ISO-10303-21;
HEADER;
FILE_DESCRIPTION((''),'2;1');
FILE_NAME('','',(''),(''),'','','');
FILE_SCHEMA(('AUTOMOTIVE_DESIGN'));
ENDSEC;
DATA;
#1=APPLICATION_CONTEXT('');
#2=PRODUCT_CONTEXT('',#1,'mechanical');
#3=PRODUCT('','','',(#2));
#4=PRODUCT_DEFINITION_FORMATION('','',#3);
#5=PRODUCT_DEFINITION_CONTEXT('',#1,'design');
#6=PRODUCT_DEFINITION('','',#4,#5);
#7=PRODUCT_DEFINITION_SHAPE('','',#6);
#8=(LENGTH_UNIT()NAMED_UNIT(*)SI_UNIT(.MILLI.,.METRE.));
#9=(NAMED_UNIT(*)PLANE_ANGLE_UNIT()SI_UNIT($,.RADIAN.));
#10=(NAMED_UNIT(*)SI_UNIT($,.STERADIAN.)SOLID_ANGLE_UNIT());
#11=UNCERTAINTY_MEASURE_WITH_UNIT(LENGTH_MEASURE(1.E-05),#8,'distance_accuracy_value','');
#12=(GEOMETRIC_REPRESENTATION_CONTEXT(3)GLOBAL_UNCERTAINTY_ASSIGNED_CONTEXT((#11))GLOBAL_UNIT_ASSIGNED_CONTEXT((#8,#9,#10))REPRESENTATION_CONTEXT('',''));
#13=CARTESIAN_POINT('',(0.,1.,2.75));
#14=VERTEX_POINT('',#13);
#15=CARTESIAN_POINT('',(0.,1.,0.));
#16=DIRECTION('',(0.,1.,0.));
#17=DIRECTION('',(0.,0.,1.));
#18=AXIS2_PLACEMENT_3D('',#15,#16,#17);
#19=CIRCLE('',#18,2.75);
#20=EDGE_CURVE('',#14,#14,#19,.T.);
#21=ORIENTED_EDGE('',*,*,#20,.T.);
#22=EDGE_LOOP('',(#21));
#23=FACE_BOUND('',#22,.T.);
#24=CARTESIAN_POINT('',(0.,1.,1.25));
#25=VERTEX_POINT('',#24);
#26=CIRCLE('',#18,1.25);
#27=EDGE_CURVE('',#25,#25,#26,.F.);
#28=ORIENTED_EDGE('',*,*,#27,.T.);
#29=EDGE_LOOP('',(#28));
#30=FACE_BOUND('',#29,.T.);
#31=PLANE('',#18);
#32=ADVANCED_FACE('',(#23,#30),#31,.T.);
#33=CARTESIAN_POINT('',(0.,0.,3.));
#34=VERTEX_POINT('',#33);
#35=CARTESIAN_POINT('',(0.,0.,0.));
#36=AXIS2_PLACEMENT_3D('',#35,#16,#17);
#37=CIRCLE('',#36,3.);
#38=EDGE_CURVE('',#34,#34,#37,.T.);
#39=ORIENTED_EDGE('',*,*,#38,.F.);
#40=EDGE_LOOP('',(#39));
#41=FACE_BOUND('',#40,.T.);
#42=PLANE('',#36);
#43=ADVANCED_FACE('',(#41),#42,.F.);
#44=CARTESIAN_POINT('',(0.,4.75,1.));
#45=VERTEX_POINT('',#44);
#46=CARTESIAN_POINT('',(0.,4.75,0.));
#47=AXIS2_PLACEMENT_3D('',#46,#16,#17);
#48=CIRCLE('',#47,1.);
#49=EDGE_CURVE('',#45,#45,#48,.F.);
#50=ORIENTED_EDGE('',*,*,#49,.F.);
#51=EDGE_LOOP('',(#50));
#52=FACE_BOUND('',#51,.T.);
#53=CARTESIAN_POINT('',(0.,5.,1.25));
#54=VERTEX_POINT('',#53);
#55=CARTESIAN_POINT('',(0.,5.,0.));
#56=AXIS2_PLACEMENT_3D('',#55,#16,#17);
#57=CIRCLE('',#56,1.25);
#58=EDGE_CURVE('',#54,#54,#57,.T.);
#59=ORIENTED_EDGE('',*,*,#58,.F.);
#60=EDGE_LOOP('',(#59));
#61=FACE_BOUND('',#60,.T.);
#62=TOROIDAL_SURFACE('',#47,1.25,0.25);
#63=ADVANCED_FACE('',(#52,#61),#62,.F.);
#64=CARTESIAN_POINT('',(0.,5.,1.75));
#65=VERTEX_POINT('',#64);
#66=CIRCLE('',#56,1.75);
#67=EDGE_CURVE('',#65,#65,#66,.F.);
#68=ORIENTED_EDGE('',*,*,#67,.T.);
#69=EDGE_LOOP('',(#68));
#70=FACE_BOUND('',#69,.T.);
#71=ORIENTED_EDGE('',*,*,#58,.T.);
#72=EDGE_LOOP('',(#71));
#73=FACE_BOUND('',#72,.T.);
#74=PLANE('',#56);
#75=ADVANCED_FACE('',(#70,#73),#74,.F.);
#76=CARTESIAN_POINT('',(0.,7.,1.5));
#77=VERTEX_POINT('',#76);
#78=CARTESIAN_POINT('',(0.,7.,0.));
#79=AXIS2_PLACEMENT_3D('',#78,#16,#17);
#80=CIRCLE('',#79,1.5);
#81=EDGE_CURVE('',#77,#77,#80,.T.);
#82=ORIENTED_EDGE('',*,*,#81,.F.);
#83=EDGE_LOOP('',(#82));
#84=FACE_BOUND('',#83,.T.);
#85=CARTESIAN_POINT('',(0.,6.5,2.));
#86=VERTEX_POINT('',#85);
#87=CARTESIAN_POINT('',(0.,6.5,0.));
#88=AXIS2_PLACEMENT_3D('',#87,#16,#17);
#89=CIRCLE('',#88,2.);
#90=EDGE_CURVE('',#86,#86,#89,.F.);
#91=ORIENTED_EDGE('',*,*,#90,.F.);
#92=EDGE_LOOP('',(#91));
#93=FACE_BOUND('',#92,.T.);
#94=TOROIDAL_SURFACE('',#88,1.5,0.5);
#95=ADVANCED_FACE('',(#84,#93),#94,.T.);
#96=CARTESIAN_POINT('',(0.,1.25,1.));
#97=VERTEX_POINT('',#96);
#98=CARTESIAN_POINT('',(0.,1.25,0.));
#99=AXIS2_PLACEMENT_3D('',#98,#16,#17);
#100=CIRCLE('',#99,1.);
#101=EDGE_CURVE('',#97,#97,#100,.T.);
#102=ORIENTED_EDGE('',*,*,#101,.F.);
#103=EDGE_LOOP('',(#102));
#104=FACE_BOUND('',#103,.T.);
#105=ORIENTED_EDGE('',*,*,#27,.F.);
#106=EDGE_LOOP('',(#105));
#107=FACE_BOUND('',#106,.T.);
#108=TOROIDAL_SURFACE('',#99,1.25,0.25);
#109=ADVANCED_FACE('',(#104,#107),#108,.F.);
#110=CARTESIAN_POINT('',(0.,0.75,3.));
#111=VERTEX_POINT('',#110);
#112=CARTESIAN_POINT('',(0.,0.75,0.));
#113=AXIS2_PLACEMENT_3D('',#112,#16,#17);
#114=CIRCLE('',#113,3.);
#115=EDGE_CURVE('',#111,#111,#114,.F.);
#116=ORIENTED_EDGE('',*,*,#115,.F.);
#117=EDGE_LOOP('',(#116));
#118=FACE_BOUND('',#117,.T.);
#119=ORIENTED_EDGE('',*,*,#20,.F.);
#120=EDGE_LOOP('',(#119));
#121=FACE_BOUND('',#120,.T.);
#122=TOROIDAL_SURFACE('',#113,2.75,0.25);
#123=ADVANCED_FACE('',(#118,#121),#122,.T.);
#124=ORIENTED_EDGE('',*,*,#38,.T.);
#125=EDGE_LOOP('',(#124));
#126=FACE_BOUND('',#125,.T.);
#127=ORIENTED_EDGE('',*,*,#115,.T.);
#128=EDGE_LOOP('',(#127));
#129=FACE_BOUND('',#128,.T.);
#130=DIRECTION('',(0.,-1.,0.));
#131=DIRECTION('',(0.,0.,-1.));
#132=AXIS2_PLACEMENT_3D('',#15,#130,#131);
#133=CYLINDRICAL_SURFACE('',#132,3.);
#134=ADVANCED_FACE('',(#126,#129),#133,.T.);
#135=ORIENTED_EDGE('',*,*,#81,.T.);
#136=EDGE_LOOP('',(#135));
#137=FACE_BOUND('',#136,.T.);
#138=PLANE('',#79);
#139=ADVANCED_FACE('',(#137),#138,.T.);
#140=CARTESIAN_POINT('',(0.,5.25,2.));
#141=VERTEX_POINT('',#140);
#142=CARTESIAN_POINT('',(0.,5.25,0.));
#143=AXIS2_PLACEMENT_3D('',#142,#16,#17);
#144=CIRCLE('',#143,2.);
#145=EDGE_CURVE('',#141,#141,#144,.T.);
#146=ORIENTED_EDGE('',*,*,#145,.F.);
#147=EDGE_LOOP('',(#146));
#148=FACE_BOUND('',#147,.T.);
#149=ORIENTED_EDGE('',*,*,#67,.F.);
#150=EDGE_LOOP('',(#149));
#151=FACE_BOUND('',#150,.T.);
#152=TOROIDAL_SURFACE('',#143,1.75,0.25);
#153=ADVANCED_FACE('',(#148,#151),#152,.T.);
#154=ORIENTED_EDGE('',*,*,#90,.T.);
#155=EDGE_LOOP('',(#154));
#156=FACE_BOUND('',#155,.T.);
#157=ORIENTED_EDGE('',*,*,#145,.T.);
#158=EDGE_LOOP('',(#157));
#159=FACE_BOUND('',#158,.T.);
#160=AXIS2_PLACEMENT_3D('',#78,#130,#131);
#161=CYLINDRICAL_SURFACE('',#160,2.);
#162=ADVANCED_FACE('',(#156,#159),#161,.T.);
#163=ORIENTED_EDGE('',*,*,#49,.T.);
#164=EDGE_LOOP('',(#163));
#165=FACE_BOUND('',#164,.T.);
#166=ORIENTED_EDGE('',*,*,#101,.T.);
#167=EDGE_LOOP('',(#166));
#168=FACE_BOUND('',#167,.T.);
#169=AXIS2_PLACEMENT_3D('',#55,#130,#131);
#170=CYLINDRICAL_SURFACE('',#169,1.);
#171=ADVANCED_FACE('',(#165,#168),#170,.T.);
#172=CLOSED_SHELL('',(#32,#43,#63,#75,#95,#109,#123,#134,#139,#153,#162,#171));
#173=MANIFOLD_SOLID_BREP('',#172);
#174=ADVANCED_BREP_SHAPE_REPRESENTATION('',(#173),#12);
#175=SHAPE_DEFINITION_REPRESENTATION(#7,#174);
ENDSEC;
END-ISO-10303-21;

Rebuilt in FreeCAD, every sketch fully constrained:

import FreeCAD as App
import Part
import Sketcher


def edges_at(feature, points):
    """Names of the edges that pass closest to the given points."""
    edges = feature.Shape.Edges
    near = lambda p: min(range(len(edges)), key=lambda i: edges[i].distToShape(Part.Vertex(*p))[0])
    return sorted({f"Edge{near(p) + 1}" for p in points})

doc = App.newDocument("Part")
body = doc.addObject("PartDesign::Body", "Body")

# Sketch on XZ plane
sketch1 = doc.addObject("Sketcher::SketchObject", "Sketch")
body.addObject(sketch1)
sketch1.AttachmentSupport = (doc.XZ_Plane, [""])
sketch1.MapMode = "FlatFace"
sketch1.addGeometry(Part.Circle(App.Vector(0, 0, 0), App.Vector(0, 0, 1), 2), False)
sketch1.addConstraint(Sketcher.Constraint("Coincident", 0, 3, -1, 1))
sketch1.addConstraint(Sketcher.Constraint("Diameter", 0, 4.0))
pad1 = doc.addObject("PartDesign::Pad", "Pad")
body.addObject(pad1)
pad1.Profile = sketch1
pad1.Length = 7
pad1.Reversed = True

# Sketch on XZ plane
sketch2 = doc.addObject("Sketcher::SketchObject", "Sketch001")
body.addObject(sketch2)
sketch2.AttachmentSupport = (doc.XZ_Plane, [""])
sketch2.MapMode = "FlatFace"
sketch2.addGeometry(Part.Circle(App.Vector(0, 0, 0), App.Vector(0, 0, 1), 2), False)
sketch2.addGeometry(Part.Circle(App.Vector(0, 0, 0), App.Vector(0, 0, 1), 1), False)
sketch2.addConstraint(Sketcher.Constraint("Coincident", 0, 3, -1, 1))
sketch2.addConstraint(Sketcher.Constraint("Coincident", 1, 3, -1, 1))
sketch2.addConstraint(Sketcher.Constraint("Diameter", 0, 4.0))
sketch2.addConstraint(Sketcher.Constraint("Diameter", 1, 2.0))
pocket1 = doc.addObject("PartDesign::Pocket", "Pocket")
body.addObject(pocket1)
pocket1.Profile = sketch2
pocket1.Length = 5

# Sketch on XZ plane
sketch3 = doc.addObject("Sketcher::SketchObject", "Sketch002")
body.addObject(sketch3)
sketch3.AttachmentSupport = (doc.XZ_Plane, [""])
sketch3.MapMode = "FlatFace"
sketch3.addGeometry(Part.Circle(App.Vector(0, 0, 0), App.Vector(0, 0, 1), 3), False)
sketch3.addGeometry(Part.Circle(App.Vector(0, 0, 0), App.Vector(0, 0, 1), 1), False)
sketch3.addConstraint(Sketcher.Constraint("Coincident", 0, 3, -1, 1))
sketch3.addConstraint(Sketcher.Constraint("Coincident", 1, 3, -1, 1))
sketch3.addConstraint(Sketcher.Constraint("Diameter", 0, 6.0))
sketch3.addConstraint(Sketcher.Constraint("Diameter", 1, 2.0))
pad2 = doc.addObject("PartDesign::Pad", "Pad001")
body.addObject(pad2)
pad2.Profile = sketch3
pad2.Length = 1
pad2.Reversed = True
doc.recompute()

fillet = doc.addObject("PartDesign::Fillet", "Fillet")
body.addObject(fillet)
fillet.Base = (pad2, edges_at(pad2, [(0, 7, -2)]))
fillet.Radius = 0.5
doc.recompute()

fillet2 = doc.addObject("PartDesign::Fillet", "Fillet001")
body.addObject(fillet2)
fillet2.Base = (fillet, edges_at(fillet, [(0, 1, -3)]))
fillet2.Radius = 0.25
doc.recompute()

fillet3 = doc.addObject("PartDesign::Fillet", "Fillet002")
body.addObject(fillet3)
fillet3.Base = (fillet2, edges_at(fillet2, [(0, 5, -1), (0, 5, -2)]))
fillet3.Radius = 0.25
doc.recompute()

fillet4 = doc.addObject("PartDesign::Fillet", "Fillet003")
body.addObject(fillet4)
fillet4.Base = (fillet3, edges_at(fillet3, [(0, 1, -1)]))
fillet4.Radius = 0.25

doc.recompute()
